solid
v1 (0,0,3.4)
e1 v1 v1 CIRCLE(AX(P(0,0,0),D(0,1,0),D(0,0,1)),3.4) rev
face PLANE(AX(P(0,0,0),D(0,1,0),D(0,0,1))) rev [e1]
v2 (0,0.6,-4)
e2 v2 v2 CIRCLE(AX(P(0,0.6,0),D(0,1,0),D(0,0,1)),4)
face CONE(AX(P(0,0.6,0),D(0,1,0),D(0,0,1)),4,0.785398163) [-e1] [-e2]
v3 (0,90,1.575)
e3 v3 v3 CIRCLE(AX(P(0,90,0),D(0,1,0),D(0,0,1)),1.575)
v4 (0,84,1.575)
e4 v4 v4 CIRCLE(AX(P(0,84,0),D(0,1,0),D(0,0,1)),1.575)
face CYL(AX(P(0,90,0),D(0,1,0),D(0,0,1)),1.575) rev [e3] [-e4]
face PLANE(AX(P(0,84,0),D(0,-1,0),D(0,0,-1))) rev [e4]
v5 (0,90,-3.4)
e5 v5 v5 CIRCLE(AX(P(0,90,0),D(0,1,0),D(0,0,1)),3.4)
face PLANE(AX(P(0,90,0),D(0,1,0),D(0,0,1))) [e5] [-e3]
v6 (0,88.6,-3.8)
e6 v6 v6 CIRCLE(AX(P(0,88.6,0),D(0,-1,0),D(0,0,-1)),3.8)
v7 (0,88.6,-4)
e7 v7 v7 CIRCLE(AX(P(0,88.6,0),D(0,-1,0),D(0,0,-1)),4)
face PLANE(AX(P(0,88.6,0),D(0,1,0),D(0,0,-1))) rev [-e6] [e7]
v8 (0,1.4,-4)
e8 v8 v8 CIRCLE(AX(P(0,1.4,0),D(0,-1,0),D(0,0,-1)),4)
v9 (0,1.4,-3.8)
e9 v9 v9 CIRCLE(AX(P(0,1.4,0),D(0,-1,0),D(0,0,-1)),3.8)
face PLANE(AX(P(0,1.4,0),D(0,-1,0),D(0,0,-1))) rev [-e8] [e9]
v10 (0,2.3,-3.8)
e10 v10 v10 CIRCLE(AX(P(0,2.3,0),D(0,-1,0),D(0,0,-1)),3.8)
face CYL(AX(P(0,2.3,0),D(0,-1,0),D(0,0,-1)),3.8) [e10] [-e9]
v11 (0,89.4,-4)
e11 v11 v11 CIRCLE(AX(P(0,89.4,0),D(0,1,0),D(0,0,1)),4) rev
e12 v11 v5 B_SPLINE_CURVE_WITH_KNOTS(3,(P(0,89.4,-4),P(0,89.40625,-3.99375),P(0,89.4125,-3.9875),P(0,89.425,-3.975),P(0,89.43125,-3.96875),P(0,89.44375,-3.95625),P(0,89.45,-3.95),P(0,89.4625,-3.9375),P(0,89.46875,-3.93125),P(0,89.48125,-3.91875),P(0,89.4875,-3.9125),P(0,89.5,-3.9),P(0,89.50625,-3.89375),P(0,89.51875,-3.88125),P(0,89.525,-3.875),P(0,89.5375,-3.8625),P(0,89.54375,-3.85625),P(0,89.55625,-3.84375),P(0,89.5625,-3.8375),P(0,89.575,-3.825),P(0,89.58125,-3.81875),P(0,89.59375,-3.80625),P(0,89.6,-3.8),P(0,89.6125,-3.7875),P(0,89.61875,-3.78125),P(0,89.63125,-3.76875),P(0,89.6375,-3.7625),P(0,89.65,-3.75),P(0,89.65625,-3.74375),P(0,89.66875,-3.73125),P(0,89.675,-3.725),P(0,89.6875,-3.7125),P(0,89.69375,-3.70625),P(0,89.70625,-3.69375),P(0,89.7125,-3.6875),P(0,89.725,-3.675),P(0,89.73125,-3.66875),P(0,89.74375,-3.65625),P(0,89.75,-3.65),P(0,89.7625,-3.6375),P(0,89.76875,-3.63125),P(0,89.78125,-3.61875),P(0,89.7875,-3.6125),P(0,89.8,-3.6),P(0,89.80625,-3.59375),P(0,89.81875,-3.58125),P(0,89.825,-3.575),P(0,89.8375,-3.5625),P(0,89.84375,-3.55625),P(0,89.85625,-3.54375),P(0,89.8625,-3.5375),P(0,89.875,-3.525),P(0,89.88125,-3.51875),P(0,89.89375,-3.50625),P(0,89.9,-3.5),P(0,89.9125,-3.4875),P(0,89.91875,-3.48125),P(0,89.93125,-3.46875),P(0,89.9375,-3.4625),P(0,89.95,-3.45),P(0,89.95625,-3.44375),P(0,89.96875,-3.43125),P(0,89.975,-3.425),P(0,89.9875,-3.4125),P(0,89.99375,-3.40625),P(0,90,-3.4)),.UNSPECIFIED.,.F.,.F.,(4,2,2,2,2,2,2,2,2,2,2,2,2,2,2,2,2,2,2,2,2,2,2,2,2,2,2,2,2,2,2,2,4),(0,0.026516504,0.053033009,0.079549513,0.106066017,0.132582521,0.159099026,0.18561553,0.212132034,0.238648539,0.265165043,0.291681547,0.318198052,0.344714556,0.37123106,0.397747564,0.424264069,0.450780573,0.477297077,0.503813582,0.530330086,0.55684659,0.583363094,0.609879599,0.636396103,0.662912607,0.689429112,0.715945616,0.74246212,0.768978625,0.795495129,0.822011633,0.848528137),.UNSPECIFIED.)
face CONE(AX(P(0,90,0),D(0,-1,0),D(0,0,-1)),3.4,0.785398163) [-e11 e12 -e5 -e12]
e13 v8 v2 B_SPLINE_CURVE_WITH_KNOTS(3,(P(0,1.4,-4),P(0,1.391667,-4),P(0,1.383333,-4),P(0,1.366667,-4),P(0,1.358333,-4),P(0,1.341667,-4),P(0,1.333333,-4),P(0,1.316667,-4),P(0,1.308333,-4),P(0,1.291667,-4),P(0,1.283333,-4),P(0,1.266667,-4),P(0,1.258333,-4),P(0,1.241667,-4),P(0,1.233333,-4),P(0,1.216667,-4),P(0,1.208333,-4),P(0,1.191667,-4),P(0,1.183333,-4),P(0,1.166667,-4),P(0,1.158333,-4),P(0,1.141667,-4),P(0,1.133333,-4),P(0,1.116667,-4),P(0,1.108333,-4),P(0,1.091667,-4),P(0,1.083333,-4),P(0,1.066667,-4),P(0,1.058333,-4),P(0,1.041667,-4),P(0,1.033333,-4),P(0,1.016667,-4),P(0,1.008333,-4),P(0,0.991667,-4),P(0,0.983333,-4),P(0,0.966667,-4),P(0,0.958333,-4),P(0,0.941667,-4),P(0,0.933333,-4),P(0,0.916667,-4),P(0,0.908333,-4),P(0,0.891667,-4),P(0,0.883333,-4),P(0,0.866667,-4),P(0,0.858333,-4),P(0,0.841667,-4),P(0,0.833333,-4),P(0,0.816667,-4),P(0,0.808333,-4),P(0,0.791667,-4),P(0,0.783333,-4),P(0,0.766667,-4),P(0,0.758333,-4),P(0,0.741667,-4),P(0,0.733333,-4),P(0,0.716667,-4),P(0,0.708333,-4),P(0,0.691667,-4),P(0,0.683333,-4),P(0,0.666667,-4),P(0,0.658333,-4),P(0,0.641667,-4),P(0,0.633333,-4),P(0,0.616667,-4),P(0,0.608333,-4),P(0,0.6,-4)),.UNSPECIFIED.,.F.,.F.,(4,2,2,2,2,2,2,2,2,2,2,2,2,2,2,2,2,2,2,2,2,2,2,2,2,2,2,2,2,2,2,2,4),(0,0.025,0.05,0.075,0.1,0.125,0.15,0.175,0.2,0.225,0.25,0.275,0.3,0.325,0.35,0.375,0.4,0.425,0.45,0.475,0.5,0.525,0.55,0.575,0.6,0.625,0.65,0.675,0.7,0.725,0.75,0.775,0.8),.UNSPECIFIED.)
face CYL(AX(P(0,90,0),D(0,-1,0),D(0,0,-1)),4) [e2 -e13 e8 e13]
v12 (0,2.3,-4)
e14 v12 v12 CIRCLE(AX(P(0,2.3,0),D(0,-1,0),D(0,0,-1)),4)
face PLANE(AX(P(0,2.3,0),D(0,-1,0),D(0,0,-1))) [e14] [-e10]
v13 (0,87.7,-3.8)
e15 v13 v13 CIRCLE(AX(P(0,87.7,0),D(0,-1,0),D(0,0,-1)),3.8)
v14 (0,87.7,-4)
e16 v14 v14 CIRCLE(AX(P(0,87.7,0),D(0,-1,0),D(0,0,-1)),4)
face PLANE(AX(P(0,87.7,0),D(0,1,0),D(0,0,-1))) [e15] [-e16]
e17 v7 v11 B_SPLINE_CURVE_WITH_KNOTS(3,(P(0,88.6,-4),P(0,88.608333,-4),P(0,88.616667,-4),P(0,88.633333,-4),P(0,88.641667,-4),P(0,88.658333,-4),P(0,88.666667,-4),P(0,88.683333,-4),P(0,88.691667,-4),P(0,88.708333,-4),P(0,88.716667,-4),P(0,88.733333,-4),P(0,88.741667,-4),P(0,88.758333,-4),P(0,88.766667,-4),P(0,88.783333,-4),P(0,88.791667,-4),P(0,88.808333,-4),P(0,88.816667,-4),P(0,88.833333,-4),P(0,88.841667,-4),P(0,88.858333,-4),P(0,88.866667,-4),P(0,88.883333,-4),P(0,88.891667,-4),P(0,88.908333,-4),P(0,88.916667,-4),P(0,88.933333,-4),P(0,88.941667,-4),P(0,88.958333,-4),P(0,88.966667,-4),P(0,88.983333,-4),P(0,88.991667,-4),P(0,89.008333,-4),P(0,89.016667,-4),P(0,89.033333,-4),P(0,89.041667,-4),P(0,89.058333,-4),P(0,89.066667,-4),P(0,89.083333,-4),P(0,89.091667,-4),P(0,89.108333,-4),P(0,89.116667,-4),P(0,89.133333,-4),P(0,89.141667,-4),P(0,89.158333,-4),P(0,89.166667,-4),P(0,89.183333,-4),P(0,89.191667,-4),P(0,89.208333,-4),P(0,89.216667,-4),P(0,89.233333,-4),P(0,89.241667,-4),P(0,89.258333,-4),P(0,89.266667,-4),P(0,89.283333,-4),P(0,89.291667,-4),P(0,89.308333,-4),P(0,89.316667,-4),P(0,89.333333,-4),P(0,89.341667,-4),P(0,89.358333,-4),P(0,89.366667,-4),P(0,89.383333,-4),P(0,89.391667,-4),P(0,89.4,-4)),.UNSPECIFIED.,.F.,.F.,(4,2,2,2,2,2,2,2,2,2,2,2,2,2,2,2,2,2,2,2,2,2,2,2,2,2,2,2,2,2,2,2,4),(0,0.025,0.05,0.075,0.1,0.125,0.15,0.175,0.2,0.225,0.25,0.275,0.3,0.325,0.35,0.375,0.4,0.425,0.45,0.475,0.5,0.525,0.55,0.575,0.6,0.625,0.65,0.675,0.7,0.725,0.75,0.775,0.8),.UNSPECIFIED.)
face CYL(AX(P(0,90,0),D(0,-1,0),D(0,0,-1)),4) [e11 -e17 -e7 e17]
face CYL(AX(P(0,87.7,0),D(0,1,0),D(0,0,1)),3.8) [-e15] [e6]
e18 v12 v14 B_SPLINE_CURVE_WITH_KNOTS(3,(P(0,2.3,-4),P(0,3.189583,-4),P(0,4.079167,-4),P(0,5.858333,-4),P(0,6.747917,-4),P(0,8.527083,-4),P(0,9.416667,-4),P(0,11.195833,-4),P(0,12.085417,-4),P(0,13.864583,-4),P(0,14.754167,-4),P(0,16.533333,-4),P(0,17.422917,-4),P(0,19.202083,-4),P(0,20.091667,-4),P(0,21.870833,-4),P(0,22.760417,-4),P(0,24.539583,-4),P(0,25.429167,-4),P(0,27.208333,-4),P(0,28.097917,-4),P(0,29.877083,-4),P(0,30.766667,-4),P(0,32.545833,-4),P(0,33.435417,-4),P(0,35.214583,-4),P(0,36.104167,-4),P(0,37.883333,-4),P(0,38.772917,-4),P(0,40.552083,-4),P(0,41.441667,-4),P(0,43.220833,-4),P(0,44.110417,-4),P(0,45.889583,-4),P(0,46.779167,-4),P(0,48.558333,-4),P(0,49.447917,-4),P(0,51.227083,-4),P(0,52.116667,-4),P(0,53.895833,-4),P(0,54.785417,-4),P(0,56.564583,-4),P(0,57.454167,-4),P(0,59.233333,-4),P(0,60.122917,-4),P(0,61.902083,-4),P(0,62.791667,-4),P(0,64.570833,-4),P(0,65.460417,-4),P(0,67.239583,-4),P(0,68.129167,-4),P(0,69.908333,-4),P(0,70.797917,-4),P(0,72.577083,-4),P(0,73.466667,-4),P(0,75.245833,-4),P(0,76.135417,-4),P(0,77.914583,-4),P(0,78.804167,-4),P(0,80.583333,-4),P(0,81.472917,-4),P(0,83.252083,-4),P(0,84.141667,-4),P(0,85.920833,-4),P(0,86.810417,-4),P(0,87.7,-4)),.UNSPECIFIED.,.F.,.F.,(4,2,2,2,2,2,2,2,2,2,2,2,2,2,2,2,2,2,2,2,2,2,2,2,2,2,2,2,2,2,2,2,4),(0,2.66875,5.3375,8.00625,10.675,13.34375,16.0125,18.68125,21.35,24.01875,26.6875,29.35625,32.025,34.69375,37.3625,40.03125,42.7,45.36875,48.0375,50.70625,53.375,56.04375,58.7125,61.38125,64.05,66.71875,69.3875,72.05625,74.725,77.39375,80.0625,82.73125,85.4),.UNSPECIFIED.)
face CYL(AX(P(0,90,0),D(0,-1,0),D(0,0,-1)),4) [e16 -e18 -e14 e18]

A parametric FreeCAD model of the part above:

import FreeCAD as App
import Part
import Sketcher
from FreeCAD import Vector


def edges_at(feature, points):
    """Names of the edges that pass closest to the given points."""
    edges = feature.Shape.Edges
    near = lambda p: min(range(len(edges)), key=lambda i: edges[i].distToShape(Part.Vertex(*p))[0])
    return sorted({f"Edge{near(p) + 1}" for p in points})

doc = App.newDocument("Part")
body = doc.addObject("PartDesign::Body", "Body")

sketch1 = body.newObject("Sketcher::SketchObject", "Sketch")
sketch1.AttachmentSupport = (doc.getObject("XZ_Plane"), [""])
sketch1.MapMode = "FlatFace"
sketch1.addGeometry(Part.Circle(Vector(0, 0, 0), Vector(0, 0, 1), 4), False)
sketch1.addConstraint(Sketcher.Constraint("Coincident", 0, 3, -1, 1))
sketch1.addConstraint(Sketcher.Constraint("Diameter", 0, 8.0))
pad1 = body.newObject("PartDesign::Pad", "Pad")
pad1.Profile = sketch1
pad1.Length = 90
pad1.Reversed = True
doc.recompute()

chamfer = body.newObject("PartDesign::Chamfer", "Chamfer")
chamfer.Base = (pad1, edges_at(pad1, [(0, 0, 4), (0, 90, 4)]))
chamfer.Size = 0.6

sketch2 = body.newObject("Sketcher::SketchObject", "Sketch001")
sketch2.AttachmentSupport = (doc.getObject("XZ_Plane"), [""])
sketch2.MapMode = "FlatFace"
sketch2.AttachmentOffset = App.Placement(Vector(0, 0, -1.4), App.Rotation())
sketch2.addGeometry(Part.Circle(Vector(0, 0, 0), Vector(0, 0, 1), 4), False)
sketch2.addGeometry(Part.Circle(Vector(0, 0, 0), Vector(0, 0, 1), 3.8), False)
sketch2.addConstraint(Sketcher.Constraint("Coincident", 0, 3, -1, 1))
sketch2.addConstraint(Sketcher.Constraint("Coincident", 1, 3, -1, 1))
sketch2.addConstraint(Sketcher.Constraint("Diameter", 0, 8.0))
sketch2.addConstraint(Sketcher.Constraint("Diameter", 1, 7.6))
pocket1 = body.newObject("PartDesign::Pocket", "Pocket")
pocket1.Profile = sketch2
pocket1.Length = 0.9

sketch3 = body.newObject("Sketcher::SketchObject", "Sketch002")
sketch3.AttachmentSupport = (doc.getObject("XZ_Plane"), [""])
sketch3.MapMode = "FlatFace"
sketch3.AttachmentOffset = App.Placement(Vector(0, 0, -90), App.Rotation())
sketch3.addGeometry(Part.Circle(Vector(0, 0, 0), Vector(0, 0, 1), 1.575), False)
sketch3.addConstraint(Sketcher.Constraint("Coincident", 0, 3, -1, 1))
sketch3.addConstraint(Sketcher.Constraint("Diameter", 0, 3.15))
doc.recompute()
hole = body.newObject("PartDesign::Hole", "Hole")
hole.Profile = sketch3
hole.ThreadType = "None"
hole.Diameter = 3.15
hole.DepthType = "Dimension"
hole.Depth = 6
hole.DrillPoint = "Flat"
hole.Reversed = True
doc.recompute()

datumplane = body.newObject("PartDesign::Plane", "DatumPlane")
datumplane.AttachmentSupport = (doc.getObject("XZ_Plane"), [""])
datumplane.MapMode = "FlatFace"
datumplane.AttachmentOffset = App.Placement(Vector(0, 0, -45), App.Rotation())
mirrored = body.newObject("PartDesign::Mirrored", "Mirrored")
mirrored.Originals = [pocket1]
mirrored.MirrorPlane = (datumplane, [""])
body.Tip = mirrored

doc.recompute()
